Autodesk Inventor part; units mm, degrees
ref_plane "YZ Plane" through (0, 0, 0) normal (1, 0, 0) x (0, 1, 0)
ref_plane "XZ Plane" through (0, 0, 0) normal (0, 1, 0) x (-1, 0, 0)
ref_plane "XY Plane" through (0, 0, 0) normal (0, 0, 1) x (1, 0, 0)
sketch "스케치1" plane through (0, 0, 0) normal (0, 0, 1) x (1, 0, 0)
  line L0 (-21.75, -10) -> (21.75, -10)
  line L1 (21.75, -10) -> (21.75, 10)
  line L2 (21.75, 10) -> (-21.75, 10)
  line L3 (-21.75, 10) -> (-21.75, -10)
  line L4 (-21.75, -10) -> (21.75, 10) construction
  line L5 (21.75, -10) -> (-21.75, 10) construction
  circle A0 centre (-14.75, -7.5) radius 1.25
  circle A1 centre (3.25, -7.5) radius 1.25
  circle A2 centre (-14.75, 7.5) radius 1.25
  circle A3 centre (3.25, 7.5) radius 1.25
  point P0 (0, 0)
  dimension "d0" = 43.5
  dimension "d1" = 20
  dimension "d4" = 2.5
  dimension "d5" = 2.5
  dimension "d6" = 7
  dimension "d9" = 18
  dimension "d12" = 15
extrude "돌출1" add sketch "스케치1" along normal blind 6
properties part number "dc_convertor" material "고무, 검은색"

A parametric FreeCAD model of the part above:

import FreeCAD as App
import Part
import Sketcher
Q = App.Units.Quantity

doc = App.newDocument("Part")
body = doc.addObject("PartDesign::Body", "Body")

# Sketch on XY plane
sketch1 = body.newObject("Sketcher::SketchObject", "Sketch")
sketch1.AttachmentSupport = (doc.getObject("XY_Plane"), [""])
sketch1.MapMode = "FlatFace"
sketch1.addGeometry(Part.LineSegment(App.Vector(-21.8, 10, 0), App.Vector(-21.8, -10, 0)), False)
sketch1.addGeometry(Part.LineSegment(App.Vector(-21.8, -10, 0), App.Vector(21.8, -10, 0)), False)
sketch1.addGeometry(Part.LineSegment(App.Vector(21.8, -10, 0), App.Vector(21.8, 10, 0)), False)
sketch1.addGeometry(Part.LineSegment(App.Vector(21.8, 10, 0), App.Vector(-21.8, 10, 0)), False)
sketch1.addGeometry(Part.Circle(App.Vector(-14.8, -7.5, 0), App.Vector(0, 0, 1), 1.2), False)
sketch1.addGeometry(Part.Circle(App.Vector(3.2, -7.5, 0), App.Vector(0, 0, 1), 1.2), False)
sketch1.addGeometry(Part.Circle(App.Vector(-14.8, 7.5, 0), App.Vector(0, 0, 1), 1.2), False)
sketch1.addGeometry(Part.Circle(App.Vector(3.2, 7.5, 0), App.Vector(0, 0, 1), 1.2), False)
sketch1.addConstraint(Sketcher.Constraint("Coincident", 0, 2, 1, 1))
sketch1.addConstraint(Sketcher.Constraint("Coincident", 1, 2, 2, 1))
sketch1.addConstraint(Sketcher.Constraint("Coincident", 2, 2, 3, 1))
sketch1.addConstraint(Sketcher.Constraint("Coincident", 3, 2, 0, 1))
sketch1.addConstraint(Sketcher.Constraint("Vertical", 0))
sketch1.addConstraint(Sketcher.Constraint("Horizontal", 1))
sketch1.addConstraint(Sketcher.Constraint("Vertical", 2))
sketch1.addConstraint(Sketcher.Constraint("Horizontal", 3))
sketch1.addConstraint(Sketcher.Constraint("Equal", 4, 5))
sketch1.addConstraint(Sketcher.Constraint("Equal", 5, 6))
sketch1.addConstraint(Sketcher.Constraint("Equal", 6, 7))
sketch1.addConstraint(Sketcher.Constraint("Symmetric", 0, 2, 2, 2, -1, 1))
sketch1.addConstraint(Sketcher.Constraint("Symmetric", 4, 3, 6, 3, -1))
sketch1.addConstraint(Sketcher.Constraint("Symmetric", 5, 3, 7, 3, -1))
sketch1.addConstraint(Sketcher.Constraint("Horizontal", 4, 3, 5, 3))
sketch1.addConstraint(Sketcher.Constraint("Diameter", 4, Q("2.5 mm")))
sketch1.addConstraint(Sketcher.Constraint("DistanceY", 0, 2, 0, 1, Q("20 mm")))
sketch1.addConstraint(Sketcher.Constraint("DistanceX", 1, 1, 1, 2, Q("43.5 mm")))
sketch1.addConstraint(Sketcher.Constraint("DistanceX", 4, 3, 5, 3, Q("18 mm")))
sketch1.addConstraint(Sketcher.Constraint("DistanceY", 4, 3, 6, 3, Q("15 mm")))
sketch1.addConstraint(Sketcher.Constraint("DistanceX", 0, 2, 4, 3, Q("7 mm")))
pad1 = body.newObject("PartDesign::Pad", "Pad")
pad1.Profile = sketch1
pad1.Length = 6

doc.recompute()
